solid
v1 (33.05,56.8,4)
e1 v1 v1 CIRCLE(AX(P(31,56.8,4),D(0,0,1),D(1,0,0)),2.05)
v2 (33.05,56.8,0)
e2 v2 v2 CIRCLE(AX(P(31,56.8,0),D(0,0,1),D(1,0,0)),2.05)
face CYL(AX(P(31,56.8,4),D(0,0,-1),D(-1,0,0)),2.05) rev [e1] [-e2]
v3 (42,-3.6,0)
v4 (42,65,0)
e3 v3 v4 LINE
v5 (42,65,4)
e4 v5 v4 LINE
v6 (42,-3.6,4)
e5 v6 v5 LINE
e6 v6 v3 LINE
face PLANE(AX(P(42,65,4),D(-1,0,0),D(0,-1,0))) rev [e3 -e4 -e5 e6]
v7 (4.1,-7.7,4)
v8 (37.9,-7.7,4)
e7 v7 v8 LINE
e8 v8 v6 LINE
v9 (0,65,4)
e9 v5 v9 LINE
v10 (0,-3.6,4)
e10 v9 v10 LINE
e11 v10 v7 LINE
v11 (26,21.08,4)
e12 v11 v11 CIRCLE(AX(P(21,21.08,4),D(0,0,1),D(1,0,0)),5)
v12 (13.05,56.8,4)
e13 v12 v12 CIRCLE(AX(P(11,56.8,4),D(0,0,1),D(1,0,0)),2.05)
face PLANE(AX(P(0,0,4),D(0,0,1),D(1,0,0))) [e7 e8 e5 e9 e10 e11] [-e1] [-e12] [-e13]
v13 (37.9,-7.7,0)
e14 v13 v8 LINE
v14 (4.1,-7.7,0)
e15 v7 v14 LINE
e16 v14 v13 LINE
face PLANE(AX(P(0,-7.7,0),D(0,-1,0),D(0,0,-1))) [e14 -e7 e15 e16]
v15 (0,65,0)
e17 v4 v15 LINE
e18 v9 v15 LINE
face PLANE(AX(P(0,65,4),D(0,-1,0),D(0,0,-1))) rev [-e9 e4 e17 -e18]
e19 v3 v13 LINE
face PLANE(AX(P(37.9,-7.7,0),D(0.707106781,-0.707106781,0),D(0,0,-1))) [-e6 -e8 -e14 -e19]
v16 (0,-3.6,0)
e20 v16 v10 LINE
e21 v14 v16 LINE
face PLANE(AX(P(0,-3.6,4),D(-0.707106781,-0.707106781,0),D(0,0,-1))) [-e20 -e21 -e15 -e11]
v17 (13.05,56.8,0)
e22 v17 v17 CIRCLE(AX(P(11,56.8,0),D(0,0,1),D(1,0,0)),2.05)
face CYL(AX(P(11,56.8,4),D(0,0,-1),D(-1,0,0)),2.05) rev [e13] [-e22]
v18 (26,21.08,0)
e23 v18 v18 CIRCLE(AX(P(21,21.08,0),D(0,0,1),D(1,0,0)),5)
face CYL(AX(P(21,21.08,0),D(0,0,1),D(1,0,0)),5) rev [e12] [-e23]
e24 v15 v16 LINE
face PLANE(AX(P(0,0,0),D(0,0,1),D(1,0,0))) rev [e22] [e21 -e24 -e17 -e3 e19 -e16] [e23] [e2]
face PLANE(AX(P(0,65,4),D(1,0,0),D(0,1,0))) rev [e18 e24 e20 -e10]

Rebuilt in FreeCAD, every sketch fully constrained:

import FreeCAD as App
import Part
import Sketcher
from FreeCAD import Vector


def edges_at(feature, points):
    """Names of the edges that pass closest to the given points."""
    edges = feature.Shape.Edges
    near = lambda p: min(range(len(edges)), key=lambda i: edges[i].distToShape(Part.Vertex(*p))[0])
    return sorted({f"Edge{near(p) + 1}" for p in points})

doc = App.newDocument("Part")
params = doc.addObject("Spreadsheet::Sheet", "Params")
for row, (alias, value) in enumerate([
    ("sketch1_diameter", "4.1 mm"),
    ("sketch1_width", "42 mm"),
    ("sketch1_height", "65 mm"),
    ("pad1_length", "4 mm"),
    ("sketch2_diameter", "10 mm"),
    ("sketch3_width", "42 mm"),
    ("sketch3_height", "7.7 mm"),
    ("pad2_length", "4 mm"),
    ("chamfer_size", "4.1 mm"),
], start=1):
    params.set(f"A{row}", alias)
    params.set(f"B{row}", "=" + value)
    params.setAlias(f"B{row}", alias)

body = doc.addObject("PartDesign::Body", "Body")

# Sketch on XY plane
sketch1 = body.newObject("Sketcher::SketchObject", "Sketch")
sketch1.AttachmentSupport = (doc.getObject("XY_Plane"), [""])
sketch1.MapMode = "FlatFace"
sketch1.addGeometry(Part.LineSegment(Vector(0, 65, 0), Vector(0, 0, 0)), False)
sketch1.addGeometry(Part.LineSegment(Vector(0, 0, 0), Vector(42, 0, 0)), False)
sketch1.addGeometry(Part.LineSegment(Vector(42, 0, 0), Vector(42, 65, 0)), False)
sketch1.addGeometry(Part.LineSegment(Vector(42, 65, 0), Vector(0, 65, 0)), False)
sketch1.addGeometry(Part.Circle(Vector(11, 56.8, 0), Vector(0, 0, 1), 2), False)
sketch1.addGeometry(Part.Circle(Vector(31, 56.8, 0), Vector(0, 0, 1), 2), False)
sketch1.addConstraint(Sketcher.Constraint("Coincident", 0, 2, 1, 1))
sketch1.addConstraint(Sketcher.Constraint("Coincident", 1, 2, 2, 1))
sketch1.addConstraint(Sketcher.Constraint("Coincident", 2, 2, 3, 1))
sketch1.addConstraint(Sketcher.Constraint("Coincident", 3, 2, 0, 1))
sketch1.addConstraint(Sketcher.Constraint("Vertical", 0))
sketch1.addConstraint(Sketcher.Constraint("Horizontal", 1))
sketch1.addConstraint(Sketcher.Constraint("Vertical", 2))
sketch1.addConstraint(Sketcher.Constraint("Horizontal", 3))
sketch1.addConstraint(Sketcher.Constraint("Coincident", 0, 2, -1, 1))
sketch1.addConstraint(Sketcher.Constraint("Equal", 4, 5))
sketch1.addConstraint(Sketcher.Constraint("Horizontal", 4, 3, 5, 3))
sketch1.addConstraint(Sketcher.Constraint("Diameter", 4, 4.1))
sketch1.addConstraint(Sketcher.Constraint("DistanceX", 1, 1, 1, 2, 42.0))
sketch1.addConstraint(Sketcher.Constraint("DistanceY", 0, 2, 0, 1, 65.0))
sketch1.addConstraint(Sketcher.Constraint("DistanceX", -1, 1, 4, 3, 11.0))
sketch1.addConstraint(Sketcher.Constraint("DistanceX", -1, 1, 5, 3, 31.0))
sketch1.addConstraint(Sketcher.Constraint("DistanceY", -1, 1, 4, 3, 56.8))
sketch1.setExpression("Constraints[11]", "Params.sketch1_diameter")
sketch1.setExpression("Constraints[12]", "Params.sketch1_width")
sketch1.setExpression("Constraints[13]", "Params.sketch1_height")
pad1 = body.newObject("PartDesign::Pad", "Pad")
pad1.Profile = sketch1
pad1.setExpression("Length", "Params.pad1_length")

# Sketch on XY plane
sketch2 = body.newObject("Sketcher::SketchObject", "Sketch001")
sketch2.AttachmentSupport = (doc.getObject("XY_Plane"), [""])
sketch2.MapMode = "FlatFace"
sketch2.AttachmentOffset = App.Placement(Vector(0, 0, 4), App.Rotation())
sketch2.addGeometry(Part.Circle(Vector(21, 21, 0), Vector(0, 0, 1), 5), False)
sketch2.addConstraint(Sketcher.Constraint("Diameter", 0, 10.0))
sketch2.addConstraint(Sketcher.Constraint("DistanceX", -1, 1, 0, 3, 21.0))
sketch2.addConstraint(Sketcher.Constraint("DistanceY", -1, 1, 0, 3, 21.08))
sketch2.setExpression("Constraints[0]", "Params.sketch2_diameter")
pocket1 = body.newObject("PartDesign::Pocket", "Pocket")
pocket1.Profile = sketch2
pocket1.Type = "ThroughAll"

# Sketch on XY plane
sketch3 = body.newObject("Sketcher::SketchObject", "Sketch002")
sketch3.AttachmentSupport = (doc.getObject("XY_Plane"), [""])
sketch3.MapMode = "FlatFace"
sketch3.AttachmentOffset = App.Placement(Vector(0, 0, 4), App.Rotation())
sketch3.addGeometry(Part.LineSegment(Vector(0, 0, 0), Vector(0, -8, 0)), False)
sketch3.addGeometry(Part.LineSegment(Vector(0, -8, 0), Vector(42, -8, 0)), False)
sketch3.addGeometry(Part.LineSegment(Vector(42, -8, 0), Vector(42, 0, 0)), False)
sketch3.addGeometry(Part.LineSegment(Vector(42, 0, 0), Vector(0, 0, 0)), False)
sketch3.addConstraint(Sketcher.Constraint("Coincident", 0, 2, 1, 1))
sketch3.addConstraint(Sketcher.Constraint("Coincident", 1, 2, 2, 1))
sketch3.addConstraint(Sketcher.Constraint("Coincident", 2, 2, 3, 1))
sketch3.addConstraint(Sketcher.Constraint("Coincident", 3, 2, 0, 1))
sketch3.addConstraint(Sketcher.Constraint("Vertical", 0))
sketch3.addConstraint(Sketcher.Constraint("Horizontal", 1))
sketch3.addConstraint(Sketcher.Constraint("Vertical", 2))
sketch3.addConstraint(Sketcher.Constraint("Horizontal", 3))
sketch3.addConstraint(Sketcher.Constraint("Coincident", 3, 2, -1, 1))
sketch3.addConstraint(Sketcher.Constraint("DistanceX", 1, 1, 1, 2, 42.0))
sketch3.addConstraint(Sketcher.Constraint("DistanceY", 0, 2, 0, 1, 7.7))
sketch3.setExpression("Constraints[9]", "Params.sketch3_width")
sketch3.setExpression("Constraints[10]", "Params.sketch3_height")
pad2 = body.newObject("PartDesign::Pad", "Pad001")
pad2.Profile = sketch3
pad2.setExpression("Length", "Params.pad2_length")
pad2.Reversed = True
doc.recompute()

chamfer = body.newObject("PartDesign::Chamfer", "Chamfer")
chamfer.Base = (pad2, edges_at(pad2, [(0, -7.7, 2), (42, -7.7, 2)]))
chamfer.setExpression("Size", "Params.chamfer_size")

doc.recompute()
